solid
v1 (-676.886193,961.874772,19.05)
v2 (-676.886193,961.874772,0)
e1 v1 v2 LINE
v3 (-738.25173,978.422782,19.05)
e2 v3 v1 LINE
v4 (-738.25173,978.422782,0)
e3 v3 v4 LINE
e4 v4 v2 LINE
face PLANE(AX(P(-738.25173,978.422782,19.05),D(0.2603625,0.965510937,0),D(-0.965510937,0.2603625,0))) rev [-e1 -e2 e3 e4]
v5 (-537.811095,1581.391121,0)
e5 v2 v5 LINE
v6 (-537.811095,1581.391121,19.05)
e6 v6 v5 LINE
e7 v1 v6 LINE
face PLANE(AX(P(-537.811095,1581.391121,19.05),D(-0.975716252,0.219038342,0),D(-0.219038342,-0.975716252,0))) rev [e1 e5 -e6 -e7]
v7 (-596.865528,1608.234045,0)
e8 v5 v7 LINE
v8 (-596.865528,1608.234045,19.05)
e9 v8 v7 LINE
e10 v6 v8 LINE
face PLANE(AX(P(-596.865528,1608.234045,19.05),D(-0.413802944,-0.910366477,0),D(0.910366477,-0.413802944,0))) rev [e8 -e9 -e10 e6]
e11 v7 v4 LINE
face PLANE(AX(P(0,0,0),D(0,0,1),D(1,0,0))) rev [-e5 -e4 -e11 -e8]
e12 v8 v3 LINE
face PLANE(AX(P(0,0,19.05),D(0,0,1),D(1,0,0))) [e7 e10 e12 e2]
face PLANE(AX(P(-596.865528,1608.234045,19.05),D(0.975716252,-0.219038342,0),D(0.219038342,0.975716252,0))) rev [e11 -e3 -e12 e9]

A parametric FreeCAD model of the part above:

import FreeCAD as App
import Part
import Sketcher

V = App.Vector


def add_polygon(sketch, points):
    """Adds a closed chain of lines whose ends are joined by coincident constraints."""
    first, n = sketch.GeometryCount, len(points)
    for a, b in zip(points, points[1:] + points[:1]):
        sketch.addGeometry(Part.LineSegment(App.Vector(*a, 0), App.Vector(*b, 0)), False)
    for i in range(n):
        sketch.addConstraint(Sketcher.Constraint("Coincident", first + i, 2, first + (i + 1) % n, 1))

doc = App.newDocument("Part")
params = doc.addObject("Spreadsheet::Sheet", "Params")
for row, (alias, value) in enumerate([
    ("pad1_length", "0.75 in"),
], start=1):
    params.set(f"A{row}", alias)
    params.set(f"B{row}", "=" + value)
    params.setAlias(f"B{row}", alias)

body = doc.addObject("PartDesign::Body", "Body")

# Sketch on XY plane
sketch1 = body.newObject("Sketcher::SketchObject", "Sketch")
sketch1.AttachmentSupport = (doc.getObject("XY_Plane"), [""])
sketch1.MapMode = "FlatFace"
add_polygon(sketch1, [(-597, 1608), (-738, 978), (-677, 962), (-538, 1581)])  # lines 0-3
sketch1.addConstraint([
    Sketcher.Constraint("Parallel", 0, 2),
    Sketcher.Constraint("DistanceX", 1, 2, 2, 2, 139.075099),
    Sketcher.Constraint("DistanceX", 0, 2, 3, 2, 141.386202),
    Sketcher.Constraint("Distance", 2, 634.934948),
    Sketcher.Constraint("DistanceX", 0, 2, -1, 1, 738.25173),
    Sketcher.Constraint("DistanceY", -1, 1, 2, 2, 1581.391121),
    Sketcher.Constraint("DistanceY", 1, 2, 0, 2, 16.54801),
    Sketcher.Constraint("Distance", 1, 63.557578),
])
pad1 = body.newObject("PartDesign::Pad", "Pad")
pad1.Profile = sketch1
pad1.setExpression("Length", "Params.pad1_length")

doc.recompute()
